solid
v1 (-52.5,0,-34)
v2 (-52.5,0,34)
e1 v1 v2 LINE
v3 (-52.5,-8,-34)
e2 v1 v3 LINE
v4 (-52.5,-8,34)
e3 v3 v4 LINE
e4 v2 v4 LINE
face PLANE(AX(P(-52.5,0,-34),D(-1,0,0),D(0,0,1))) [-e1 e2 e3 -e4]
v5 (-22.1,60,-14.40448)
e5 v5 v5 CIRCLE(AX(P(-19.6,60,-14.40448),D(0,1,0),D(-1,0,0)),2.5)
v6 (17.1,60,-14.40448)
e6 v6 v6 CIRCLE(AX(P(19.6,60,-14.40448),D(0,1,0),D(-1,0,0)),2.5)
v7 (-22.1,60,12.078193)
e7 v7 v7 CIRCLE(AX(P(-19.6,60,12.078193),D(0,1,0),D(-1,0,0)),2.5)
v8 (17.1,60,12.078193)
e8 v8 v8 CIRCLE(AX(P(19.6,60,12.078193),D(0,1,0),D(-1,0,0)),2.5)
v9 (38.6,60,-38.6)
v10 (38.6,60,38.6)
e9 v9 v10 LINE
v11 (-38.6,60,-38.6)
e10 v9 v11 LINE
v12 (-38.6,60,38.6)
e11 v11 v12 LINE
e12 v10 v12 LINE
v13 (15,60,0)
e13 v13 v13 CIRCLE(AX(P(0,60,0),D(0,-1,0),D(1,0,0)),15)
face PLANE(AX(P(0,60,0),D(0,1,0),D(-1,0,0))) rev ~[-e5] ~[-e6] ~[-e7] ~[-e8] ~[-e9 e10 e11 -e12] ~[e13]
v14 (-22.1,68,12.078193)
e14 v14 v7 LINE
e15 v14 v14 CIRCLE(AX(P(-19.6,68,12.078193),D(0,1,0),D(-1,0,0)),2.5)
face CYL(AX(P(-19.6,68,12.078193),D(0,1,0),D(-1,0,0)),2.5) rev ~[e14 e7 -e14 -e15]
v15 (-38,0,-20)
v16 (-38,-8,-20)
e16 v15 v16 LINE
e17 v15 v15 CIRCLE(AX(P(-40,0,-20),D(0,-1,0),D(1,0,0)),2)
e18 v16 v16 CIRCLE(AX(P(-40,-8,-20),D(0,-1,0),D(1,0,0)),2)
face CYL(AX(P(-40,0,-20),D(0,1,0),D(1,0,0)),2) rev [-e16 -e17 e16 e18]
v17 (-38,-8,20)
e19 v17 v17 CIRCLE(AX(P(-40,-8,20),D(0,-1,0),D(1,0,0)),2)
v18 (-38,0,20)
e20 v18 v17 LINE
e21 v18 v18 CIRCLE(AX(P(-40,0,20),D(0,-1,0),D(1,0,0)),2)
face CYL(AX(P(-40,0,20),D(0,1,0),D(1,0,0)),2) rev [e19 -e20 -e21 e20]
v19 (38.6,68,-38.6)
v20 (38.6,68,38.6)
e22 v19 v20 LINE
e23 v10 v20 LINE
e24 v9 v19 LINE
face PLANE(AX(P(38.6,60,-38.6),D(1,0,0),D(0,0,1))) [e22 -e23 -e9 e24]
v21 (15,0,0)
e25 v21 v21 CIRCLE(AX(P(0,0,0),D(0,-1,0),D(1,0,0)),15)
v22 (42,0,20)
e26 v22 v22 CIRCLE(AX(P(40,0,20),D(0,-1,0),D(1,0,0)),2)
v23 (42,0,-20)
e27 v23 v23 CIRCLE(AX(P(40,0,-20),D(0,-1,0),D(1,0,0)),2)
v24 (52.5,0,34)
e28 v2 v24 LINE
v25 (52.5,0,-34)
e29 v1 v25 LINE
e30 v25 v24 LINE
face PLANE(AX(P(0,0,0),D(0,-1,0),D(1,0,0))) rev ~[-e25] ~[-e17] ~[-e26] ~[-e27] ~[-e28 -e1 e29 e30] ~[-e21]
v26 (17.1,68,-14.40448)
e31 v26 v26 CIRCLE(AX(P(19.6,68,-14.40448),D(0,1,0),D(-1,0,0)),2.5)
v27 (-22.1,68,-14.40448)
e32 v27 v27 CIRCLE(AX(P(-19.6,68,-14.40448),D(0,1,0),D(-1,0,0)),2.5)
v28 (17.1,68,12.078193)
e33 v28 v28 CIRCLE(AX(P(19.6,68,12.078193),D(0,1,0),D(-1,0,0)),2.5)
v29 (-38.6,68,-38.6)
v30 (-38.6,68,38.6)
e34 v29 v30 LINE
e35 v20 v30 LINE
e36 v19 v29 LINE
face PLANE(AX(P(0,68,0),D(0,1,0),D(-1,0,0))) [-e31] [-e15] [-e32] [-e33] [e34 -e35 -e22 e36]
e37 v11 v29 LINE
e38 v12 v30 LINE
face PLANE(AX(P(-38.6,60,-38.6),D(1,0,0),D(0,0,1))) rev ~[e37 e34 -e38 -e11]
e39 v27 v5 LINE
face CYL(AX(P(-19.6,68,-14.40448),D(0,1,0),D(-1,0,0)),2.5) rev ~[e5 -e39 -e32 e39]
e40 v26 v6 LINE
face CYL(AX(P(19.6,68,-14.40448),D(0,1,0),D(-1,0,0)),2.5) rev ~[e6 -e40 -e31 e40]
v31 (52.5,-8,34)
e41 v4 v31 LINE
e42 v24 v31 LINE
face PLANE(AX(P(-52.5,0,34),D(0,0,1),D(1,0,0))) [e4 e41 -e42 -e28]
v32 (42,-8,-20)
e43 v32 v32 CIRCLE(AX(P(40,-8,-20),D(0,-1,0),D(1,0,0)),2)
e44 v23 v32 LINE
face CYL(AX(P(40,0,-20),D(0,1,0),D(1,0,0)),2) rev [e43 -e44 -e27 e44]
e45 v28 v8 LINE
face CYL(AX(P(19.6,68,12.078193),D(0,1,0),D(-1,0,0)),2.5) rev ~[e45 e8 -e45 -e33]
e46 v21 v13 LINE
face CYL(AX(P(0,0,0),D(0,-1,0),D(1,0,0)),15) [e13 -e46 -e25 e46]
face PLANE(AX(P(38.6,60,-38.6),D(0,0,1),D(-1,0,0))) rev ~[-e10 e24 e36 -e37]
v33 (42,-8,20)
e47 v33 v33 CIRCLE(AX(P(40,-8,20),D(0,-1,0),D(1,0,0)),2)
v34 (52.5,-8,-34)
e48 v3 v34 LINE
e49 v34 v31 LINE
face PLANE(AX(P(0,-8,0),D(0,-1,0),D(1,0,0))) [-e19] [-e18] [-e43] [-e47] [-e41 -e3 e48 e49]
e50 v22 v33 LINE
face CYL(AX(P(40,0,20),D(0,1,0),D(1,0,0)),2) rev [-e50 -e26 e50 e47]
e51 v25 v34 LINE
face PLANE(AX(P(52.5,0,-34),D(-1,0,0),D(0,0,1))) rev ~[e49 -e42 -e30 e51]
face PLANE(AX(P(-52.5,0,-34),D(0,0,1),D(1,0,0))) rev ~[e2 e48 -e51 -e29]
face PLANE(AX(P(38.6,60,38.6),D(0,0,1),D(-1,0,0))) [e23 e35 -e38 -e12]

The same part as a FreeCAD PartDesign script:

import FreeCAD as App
import Part
import Sketcher

V = App.Vector
Q = App.Units.Quantity

doc = App.newDocument("Part")
body = doc.addObject("PartDesign::Body", "Body")

# Sketch on XZ plane
sketch1 = body.newObject("Sketcher::SketchObject", "Sketch")
sketch1.AttachmentSupport = (doc.getObject("XZ_Plane"), [""])
sketch1.MapMode = "FlatFace"
sketch1.addGeometry([
    Part.LineSegment(V(-52.5, 34, 0), V(-52.5, -34, 0)),  # 0
    Part.LineSegment(V(-52.5, -34, 0), V(52.5, -34, 0)),  # 1
    Part.LineSegment(V(52.5, -34, 0), V(52.5, 34, 0)),  # 2
    Part.LineSegment(V(52.5, 34, 0), V(-52.5, 34, 0)),  # 3
    Part.Circle(V(-40, -20, 0), V(0, 0, 1), 2),  # 4
    Part.Circle(V(40, -20, 0), V(0, 0, 1), 2),  # 5
    Part.Circle(V(-40, 20, 0), V(0, 0, 1), 2),  # 6
    Part.Circle(V(40, 20, 0), V(0, 0, 1), 2),  # 7
], False)
sketch1.addConstraint([
    Sketcher.Constraint("Coincident", 0, 2, 1, 1),
    Sketcher.Constraint("Coincident", 1, 2, 2, 1),
    Sketcher.Constraint("Coincident", 2, 2, 3, 1),
    Sketcher.Constraint("Coincident", 3, 2, 0, 1),
    Sketcher.Constraint("Vertical", 0),
    Sketcher.Constraint("Horizontal", 1),
    Sketcher.Constraint("Vertical", 2),
    Sketcher.Constraint("Horizontal", 3),
    Sketcher.Constraint("Equal", 4, 5),
    Sketcher.Constraint("Equal", 5, 6),
    Sketcher.Constraint("Equal", 6, 7),
    Sketcher.Constraint("Symmetric", 5, 3, 6, 3, -1, 1),
    Sketcher.Constraint("Symmetric", 4, 3, 7, 3, -1, 1),
    Sketcher.Constraint("Symmetric", 0, 2, 2, 2, -1, 1),
    Sketcher.Constraint("Symmetric", 4, 3, 5, 3, -2),
    Sketcher.Constraint("Diameter", 4, Q("4 mm")),
    Sketcher.Constraint("DistanceX", 1, 1, 1, 2, Q("105 mm")),
    Sketcher.Constraint("DistanceY", 0, 2, 0, 1, Q("68 mm")),
    Sketcher.Constraint("DistanceX", 4, 3, -1, 1, Q("40 mm")),
    Sketcher.Constraint("DistanceY", 4, 3, -1, 1, Q("20 mm")),
])
pad1 = body.newObject("PartDesign::Pad", "Pad")
pad1.Profile = sketch1
pad1.Length = 8

# Sketch on XZ plane
sketch2 = body.newObject("Sketcher::SketchObject", "Sketch001")
sketch2.AttachmentSupport = (doc.getObject("XZ_Plane"), [""])
sketch2.MapMode = "FlatFace"
sketch2.addGeometry(Part.Circle(V(0, 0, 0), V(0, 0, 1), 15), False)
sketch2.addConstraint([
    Sketcher.Constraint("Coincident", 0, 3, -1, 1),
    Sketcher.Constraint("Diameter", 0, Q("30 mm")),
])
pad2 = body.newObject("PartDesign::Pad", "Pad001")
pad2.Profile = sketch2
pad2.Length = 60
pad2.Reversed = True

# Sketch on XZ plane
sketch3 = body.newObject("Sketcher::SketchObject", "Sketch002")
sketch3.AttachmentSupport = (doc.getObject("XZ_Plane"), [""])
sketch3.MapMode = "FlatFace"
sketch3.AttachmentOffset = App.Placement(V(0, 0, -60), App.Rotation())
sketch3.addGeometry([
    Part.LineSegment(V(38.6, 38.6, 0), V(38.6, -38.6, 0)),
    Part.LineSegment(V(38.6, -38.6, 0), V(-38.6, -38.6, 0)),
    Part.LineSegment(V(-38.6, -38.6, 0), V(-38.6, 38.6, 0)),
    Part.LineSegment(V(-38.6, 38.6, 0), V(38.6, 38.6, 0)),
], False)
sketch3.addConstraint([
    Sketcher.Constraint("Coincident", 0, 2, 1, 1),
    Sketcher.Constraint("Coincident", 1, 2, 2, 1),
    Sketcher.Constraint("Coincident", 2, 2, 3, 1),
    Sketcher.Constraint("Coincident", 3, 2, 0, 1),
    Sketcher.Constraint("Vertical", 0),
    Sketcher.Constraint("Horizontal", 1),
    Sketcher.Constraint("Vertical", 2),
    Sketcher.Constraint("Horizontal", 3),
    Sketcher.Constraint("Symmetric", 0, 2, 2, 2, -1, 1),
    Sketcher.Constraint("Equal", 3, 0),
    Sketcher.Constraint("DistanceX", 1, 2, 1, 1, Q("77.2 mm")),
])
pad3 = body.newObject("PartDesign::Pad", "Pad002")
pad3.Profile = sketch3
pad3.Length = 8
pad3.Reversed = True

# Sketch on XZ plane
sketch4 = body.newObject("Sketcher::SketchObject", "Sketch003")
sketch4.AttachmentSupport = (doc.getObject("XZ_Plane"), [""])
sketch4.MapMode = "FlatFace"
sketch4.AttachmentOffset = App.Placement(V(0, 0, -68), App.Rotation())
sketch4.addGeometry([
    Part.Circle(V(19.6, 12.078193, 0), V(0, 0, 1), 2.5),
    Part.Circle(V(19.6, -14.40448, 0), V(0, 0, 1), 2.5),
    Part.Circle(V(-19.6, -14.40448, 0), V(0, 0, 1), 2.5),
    Part.Circle(V(-19.6, 12.078193, 0), V(0, 0, 1), 2.5),
], False)
sketch4.addConstraint([
    Sketcher.Constraint("Equal", 0, 1),
    Sketcher.Constraint("Equal", 1, 2),
    Sketcher.Constraint("Equal", 2, 3),
    Sketcher.Constraint("Symmetric", 1, 3, 2, 3, -2),
    Sketcher.Constraint("Symmetric", 0, 3, 3, 3, -2),
    Sketcher.Constraint("Vertical", 0, 3, 1, 3),
    Sketcher.Constraint("Diameter", 0, Q("5 mm")),
    Sketcher.Constraint("DistanceX", -1, 1, 0, 3, Q("19.6 mm")),
    Sketcher.Constraint("DistanceY", 1, 3, -1, 1, Q("14.40448 mm")),
    Sketcher.Constraint("DistanceY", -1, 1, 0, 3, Q("12.078193 mm")),
])
pocket1 = body.newObject("PartDesign::Pocket", "Pocket")
pocket1.Profile = sketch4
pocket1.Length = 44.4
pocket1.Reversed = True

doc.recompute()
